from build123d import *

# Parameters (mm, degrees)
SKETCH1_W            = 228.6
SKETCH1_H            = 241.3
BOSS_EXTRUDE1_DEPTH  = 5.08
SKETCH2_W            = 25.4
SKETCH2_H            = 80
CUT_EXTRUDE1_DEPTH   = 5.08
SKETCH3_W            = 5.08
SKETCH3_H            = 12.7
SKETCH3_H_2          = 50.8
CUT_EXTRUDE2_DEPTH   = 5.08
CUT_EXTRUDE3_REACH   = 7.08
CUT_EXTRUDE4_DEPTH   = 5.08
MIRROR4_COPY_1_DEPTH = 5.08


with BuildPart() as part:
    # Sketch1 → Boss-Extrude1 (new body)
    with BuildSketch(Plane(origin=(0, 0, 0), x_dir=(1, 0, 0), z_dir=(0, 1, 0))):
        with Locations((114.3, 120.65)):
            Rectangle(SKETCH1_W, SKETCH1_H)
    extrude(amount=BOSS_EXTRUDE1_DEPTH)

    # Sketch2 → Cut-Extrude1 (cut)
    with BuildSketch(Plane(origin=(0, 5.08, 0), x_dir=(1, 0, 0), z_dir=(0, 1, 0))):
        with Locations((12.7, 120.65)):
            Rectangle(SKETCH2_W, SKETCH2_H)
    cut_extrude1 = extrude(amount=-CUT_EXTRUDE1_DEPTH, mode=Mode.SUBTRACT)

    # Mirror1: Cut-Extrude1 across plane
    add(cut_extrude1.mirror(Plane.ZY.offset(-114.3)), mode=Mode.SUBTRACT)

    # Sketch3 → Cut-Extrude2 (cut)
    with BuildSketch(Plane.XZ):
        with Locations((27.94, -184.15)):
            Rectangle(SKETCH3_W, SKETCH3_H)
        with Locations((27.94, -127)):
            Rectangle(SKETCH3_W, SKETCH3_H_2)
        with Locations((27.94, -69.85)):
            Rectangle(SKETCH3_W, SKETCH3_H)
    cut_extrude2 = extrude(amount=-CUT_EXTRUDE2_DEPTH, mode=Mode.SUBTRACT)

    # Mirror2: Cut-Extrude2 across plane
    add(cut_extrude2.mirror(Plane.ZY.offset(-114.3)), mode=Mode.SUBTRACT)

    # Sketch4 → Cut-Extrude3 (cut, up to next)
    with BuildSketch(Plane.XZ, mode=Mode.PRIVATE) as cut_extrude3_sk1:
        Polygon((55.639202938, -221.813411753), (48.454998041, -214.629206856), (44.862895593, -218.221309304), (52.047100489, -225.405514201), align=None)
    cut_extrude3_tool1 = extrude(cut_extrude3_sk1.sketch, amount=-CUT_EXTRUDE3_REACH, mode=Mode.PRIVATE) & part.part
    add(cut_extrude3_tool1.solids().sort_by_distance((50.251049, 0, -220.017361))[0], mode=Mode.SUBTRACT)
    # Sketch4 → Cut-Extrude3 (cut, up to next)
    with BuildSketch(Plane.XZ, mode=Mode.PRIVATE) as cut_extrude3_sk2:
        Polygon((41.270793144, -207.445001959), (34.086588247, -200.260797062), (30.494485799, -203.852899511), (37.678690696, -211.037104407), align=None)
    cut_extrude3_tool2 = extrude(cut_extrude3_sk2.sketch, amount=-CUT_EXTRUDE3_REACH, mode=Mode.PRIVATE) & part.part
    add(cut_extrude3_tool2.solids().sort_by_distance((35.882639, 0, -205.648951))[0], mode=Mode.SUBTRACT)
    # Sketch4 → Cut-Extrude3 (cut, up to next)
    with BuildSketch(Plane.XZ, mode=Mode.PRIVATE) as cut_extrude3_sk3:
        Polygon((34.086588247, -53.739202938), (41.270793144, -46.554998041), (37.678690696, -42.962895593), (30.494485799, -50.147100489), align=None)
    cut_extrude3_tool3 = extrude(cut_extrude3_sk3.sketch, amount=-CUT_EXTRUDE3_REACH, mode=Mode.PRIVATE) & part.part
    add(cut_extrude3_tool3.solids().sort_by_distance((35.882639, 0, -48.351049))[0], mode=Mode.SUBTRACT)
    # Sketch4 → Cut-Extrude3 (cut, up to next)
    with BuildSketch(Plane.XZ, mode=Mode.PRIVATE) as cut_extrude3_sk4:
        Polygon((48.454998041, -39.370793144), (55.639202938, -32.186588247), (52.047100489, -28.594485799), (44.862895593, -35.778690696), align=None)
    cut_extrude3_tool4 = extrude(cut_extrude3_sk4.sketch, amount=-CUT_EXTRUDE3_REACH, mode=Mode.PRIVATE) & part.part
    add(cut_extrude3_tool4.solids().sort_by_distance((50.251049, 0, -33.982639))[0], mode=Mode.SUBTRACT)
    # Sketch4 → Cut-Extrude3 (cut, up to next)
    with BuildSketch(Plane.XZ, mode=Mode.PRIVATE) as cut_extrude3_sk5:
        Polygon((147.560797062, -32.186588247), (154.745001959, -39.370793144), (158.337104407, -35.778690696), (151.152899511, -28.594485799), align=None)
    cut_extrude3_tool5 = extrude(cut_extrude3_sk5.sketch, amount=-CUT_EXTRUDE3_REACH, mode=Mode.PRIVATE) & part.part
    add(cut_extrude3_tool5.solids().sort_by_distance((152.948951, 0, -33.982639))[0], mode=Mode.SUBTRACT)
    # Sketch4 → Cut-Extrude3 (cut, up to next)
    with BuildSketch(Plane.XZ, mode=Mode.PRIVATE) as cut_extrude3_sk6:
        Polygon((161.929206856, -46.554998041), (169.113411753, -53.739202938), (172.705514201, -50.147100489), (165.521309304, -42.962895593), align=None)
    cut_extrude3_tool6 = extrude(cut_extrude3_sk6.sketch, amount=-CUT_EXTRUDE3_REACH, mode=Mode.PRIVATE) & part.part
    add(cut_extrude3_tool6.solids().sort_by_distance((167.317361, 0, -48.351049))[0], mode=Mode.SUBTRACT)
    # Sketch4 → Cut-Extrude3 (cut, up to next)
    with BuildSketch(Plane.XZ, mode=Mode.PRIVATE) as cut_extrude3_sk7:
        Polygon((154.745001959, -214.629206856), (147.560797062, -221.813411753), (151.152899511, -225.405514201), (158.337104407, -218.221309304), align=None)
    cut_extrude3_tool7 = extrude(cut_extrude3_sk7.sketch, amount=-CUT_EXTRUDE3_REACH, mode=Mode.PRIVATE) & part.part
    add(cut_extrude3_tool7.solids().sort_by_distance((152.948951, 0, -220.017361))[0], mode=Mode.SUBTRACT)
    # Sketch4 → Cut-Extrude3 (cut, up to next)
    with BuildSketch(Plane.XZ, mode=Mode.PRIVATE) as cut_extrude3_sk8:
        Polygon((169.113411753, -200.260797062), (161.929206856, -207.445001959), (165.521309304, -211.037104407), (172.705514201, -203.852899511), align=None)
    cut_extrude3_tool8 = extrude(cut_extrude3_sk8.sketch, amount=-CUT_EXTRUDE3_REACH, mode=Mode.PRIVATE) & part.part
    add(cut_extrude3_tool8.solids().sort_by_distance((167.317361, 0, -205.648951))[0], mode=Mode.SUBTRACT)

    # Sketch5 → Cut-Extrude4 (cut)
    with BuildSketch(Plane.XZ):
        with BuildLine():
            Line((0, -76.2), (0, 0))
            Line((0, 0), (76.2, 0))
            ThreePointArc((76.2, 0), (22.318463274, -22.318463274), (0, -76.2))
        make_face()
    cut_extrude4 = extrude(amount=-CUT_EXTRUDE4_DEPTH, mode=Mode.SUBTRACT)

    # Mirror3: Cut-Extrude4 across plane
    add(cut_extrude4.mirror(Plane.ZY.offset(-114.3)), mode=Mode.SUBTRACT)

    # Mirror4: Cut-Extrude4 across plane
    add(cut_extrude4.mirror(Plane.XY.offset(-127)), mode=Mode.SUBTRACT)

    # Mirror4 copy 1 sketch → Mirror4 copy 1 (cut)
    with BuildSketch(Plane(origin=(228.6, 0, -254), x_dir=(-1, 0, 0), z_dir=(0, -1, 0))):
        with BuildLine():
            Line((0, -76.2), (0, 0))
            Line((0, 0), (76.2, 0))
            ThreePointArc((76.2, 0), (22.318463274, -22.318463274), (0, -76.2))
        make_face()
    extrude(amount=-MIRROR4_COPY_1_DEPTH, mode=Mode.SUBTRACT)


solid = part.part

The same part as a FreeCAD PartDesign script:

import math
import FreeCAD as App
import Part
import Sketcher
from FreeCAD import Vector
Q = App.Units.Quantity


def add_polygon(sketch, points):
    """Adds a closed chain of lines whose ends are joined by coincident constraints."""
    first, n = sketch.GeometryCount, len(points)
    for a, b in zip(points, points[1:] + points[:1]):
        sketch.addGeometry(Part.LineSegment(App.Vector(*a, 0), App.Vector(*b, 0)), False)
    for i in range(n):
        sketch.addConstraint(Sketcher.Constraint("Coincident", first + i, 2, first + (i + 1) % n, 1))

doc = App.newDocument("Part")
body = doc.addObject("PartDesign::Body", "Body")

sketch1 = body.newObject("Sketcher::SketchObject", "Sketch")
sketch1.AttachmentSupport = (doc.getObject("XZ_Plane"), [""])
sketch1.MapMode = "FlatFace"
add_polygon(sketch1, [(0, -241), (0, 0), (229, 0), (229, -241)])
sketch1.addConstraint(Sketcher.Constraint("Vertical", 0))
sketch1.addConstraint(Sketcher.Constraint("Horizontal", 1))
sketch1.addConstraint(Sketcher.Constraint("Vertical", 2))
sketch1.addConstraint(Sketcher.Constraint("Horizontal", 3))
sketch1.addConstraint(Sketcher.Constraint("Coincident", 0, 2, -1, 1))
sketch1.addConstraint(Sketcher.Constraint("DistanceX", 1, 1, 1, 2, Q("9 in")))
sketch1.addConstraint(Sketcher.Constraint("DistanceY", 0, 1, 0, 2, Q("9.5 in")))
pad1 = body.newObject("PartDesign::Pad", "Pad")
pad1.Profile = sketch1
pad1.Length = Q("0.2 in")
pad1.Reversed = True

sketch2 = body.newObject("Sketcher::SketchObject", "Sketch001")
sketch2.AttachmentSupport = (doc.getObject("XZ_Plane"), [""])
sketch2.MapMode = "FlatFace"
sketch2.AttachmentOffset = App.Placement(Vector(0, 0, -0.2 * 25.4), App.Rotation())
add_polygon(sketch2, [(0, -161), (0, -81), (25, -81), (25, -161)])
sketch2.addConstraint(Sketcher.Constraint("Vertical", 0))
sketch2.addConstraint(Sketcher.Constraint("Horizontal", 1))
sketch2.addConstraint(Sketcher.Constraint("Vertical", 2))
sketch2.addConstraint(Sketcher.Constraint("Horizontal", 3))
sketch2.addConstraint(Sketcher.Constraint("PointOnObject", 0, 2, -2))
sketch2.addConstraint(Sketcher.Constraint("DistanceX", 1, 1, 1, 2, Q("1 in")))
sketch2.addConstraint(Sketcher.Constraint("DistanceY", 0, 1, 0, 2, Q("80 mm")))
sketch2.addConstraint(Sketcher.Constraint("DistanceY", 0, 2, -1, 1, Q("80.65 mm")))
pocket1 = body.newObject("PartDesign::Pocket", "Pocket")
pocket1.Profile = sketch2
pocket1.Length = Q("0.2 in")
pocket1.Reversed = True
doc.recompute()

datumplane = body.newObject("PartDesign::Plane", "DatumPlane")
datumplane.AttachmentSupport = (doc.getObject("YZ_Plane"), [""])
datumplane.MapMode = "FlatFace"
datumplane.AttachmentOffset = App.Placement(Vector(0, 0, 4.5 * 25.4), App.Rotation())
mirrored = body.newObject("PartDesign::Mirrored", "Mirrored")
mirrored.Originals = [pocket1]
mirrored.MirrorPlane = (datumplane, [""])
body.Tip = mirrored

sketch3 = body.newObject("Sketcher::SketchObject", "Sketch002")
sketch3.AttachmentSupport = (doc.getObject("XZ_Plane"), [""])
sketch3.MapMode = "FlatFace"
add_polygon(sketch3, [(25, -178), (25, -190), (30, -190), (30, -178)])
add_polygon(sketch3, [(25, -102), (25, -152), (30, -152), (30, -102)])
add_polygon(sketch3, [(25, -64), (25, -76), (30, -76), (30, -64)])
sketch3.addConstraint(Sketcher.Constraint("Vertical", 0))
sketch3.addConstraint(Sketcher.Constraint("Horizontal", 1))
sketch3.addConstraint(Sketcher.Constraint("Vertical", 2))
sketch3.addConstraint(Sketcher.Constraint("Horizontal", 3))
sketch3.addConstraint(Sketcher.Constraint("Vertical", 4))
sketch3.addConstraint(Sketcher.Constraint("Horizontal", 5))
sketch3.addConstraint(Sketcher.Constraint("Vertical", 6))
sketch3.addConstraint(Sketcher.Constraint("Horizontal", 7))
sketch3.addConstraint(Sketcher.Constraint("Vertical", 8))
sketch3.addConstraint(Sketcher.Constraint("Horizontal", 9))
sketch3.addConstraint(Sketcher.Constraint("Vertical", 10))
sketch3.addConstraint(Sketcher.Constraint("Horizontal", 11))
sketch3.addConstraint(Sketcher.Constraint("Vertical", 3, 2, 4, 2))
sketch3.addConstraint(Sketcher.Constraint("Vertical", 2, 2, 5, 2))
sketch3.addConstraint(Sketcher.Constraint("Vertical", 7, 2, 8, 2))
sketch3.addConstraint(Sketcher.Constraint("Vertical", 6, 2, 9, 2))
sketch3.addConstraint(Sketcher.Constraint("Equal", 2, 8))
sketch3.addConstraint(Sketcher.Constraint("DistanceY", 4, 2, 4, 1, Q("2 in")))
sketch3.addConstraint(Sketcher.Constraint("DistanceX", 1, 1, 1, 2, Q("0.2 in")))
sketch3.addConstraint(Sketcher.Constraint("DistanceY", 0, 2, 0, 1, Q("0.5 in")))
sketch3.addConstraint(Sketcher.Constraint("DistanceX", -1, 1, 0, 2, Q("1 in")))
sketch3.addConstraint(Sketcher.Constraint("DistanceY", 2, 2, -1, 1, Q("7 in")))
sketch3.addConstraint(Sketcher.Constraint("DistanceY", 4, 2, -1, 1, Q("6 in")))
sketch3.addConstraint(Sketcher.Constraint("DistanceY", 8, 2, -1, 1, Q("3 in")))
pocket2 = body.newObject("PartDesign::Pocket", "Pocket001")
pocket2.Profile = sketch3
pocket2.Length = Q("0.2 in")
doc.recompute()

datumplane2 = body.newObject("PartDesign::Plane", "DatumPlane001")
datumplane2.AttachmentSupport = (doc.getObject("YZ_Plane"), [""])
datumplane2.MapMode = "FlatFace"
datumplane2.AttachmentOffset = App.Placement(Vector(0, 0, 4.5 * 25.4), App.Rotation())
mirrored2 = body.newObject("PartDesign::Mirrored", "Mirrored001")
mirrored2.Originals = [pocket2]
mirrored2.MirrorPlane = (datumplane2, [""])
body.Tip = mirrored2

sketch4 = body.newObject("Sketcher::SketchObject", "Sketch003")
sketch4.AttachmentSupport = (doc.getObject("XZ_Plane"), [""])
sketch4.MapMode = "FlatFace"
add_polygon(sketch4, [(56, -222), (48, -215), (45, -218), (52, -225)])
sketch4.addConstraint(Sketcher.Constraint("Perpendicular", 0, 1))
sketch4.addConstraint(Sketcher.Constraint("Perpendicular", 1, 2))
sketch4.addConstraint(Sketcher.Constraint("Perpendicular", 2, 3))
sketch4.addConstraint(Sketcher.Constraint("Angle", 0, Q("135 deg")))
sketch4.addConstraint(Sketcher.Constraint("Distance", 0, Q("0.4 in")))
sketch4.addConstraint(Sketcher.Constraint("Distance", 1, Q("0.2 in")))
sketch4.addConstraint(Sketcher.Constraint("DistanceX", -1, 1, 0, 2, Q("48.454998 mm")))
sketch4.addConstraint(Sketcher.Constraint("DistanceY", 1, 2, -1, 1, Q("218.221309 mm")))
pocket3 = body.newObject("PartDesign::Pocket", "Pocket002")
pocket3.Profile = sketch4
pocket3.Type = "UpToFirst"

sketch5 = body.newObject("Sketcher::SketchObject", "Sketch004")
sketch5.AttachmentSupport = (doc.getObject("XZ_Plane"), [""])
sketch5.MapMode = "FlatFace"
add_polygon(sketch5, [(41, -207), (34, -200), (30, -204), (38, -211)])
sketch5.addConstraint(Sketcher.Constraint("Perpendicular", 0, 1))
sketch5.addConstraint(Sketcher.Constraint("Perpendicular", 1, 2))
sketch5.addConstraint(Sketcher.Constraint("Perpendicular", 2, 3))
sketch5.addConstraint(Sketcher.Constraint("Angle", 0, Q("135 deg")))
sketch5.addConstraint(Sketcher.Constraint("Distance", 0, Q("0.4 in")))
sketch5.addConstraint(Sketcher.Constraint("Distance", 1, Q("0.2 in")))
sketch5.addConstraint(Sketcher.Constraint("DistanceY", 1, 2, -1, 1, Q("203.8529 mm")))
sketch5.addConstraint(Sketcher.Constraint("DistanceX", -1, 1, 0, 2, Q("34.086588 mm")))
pocket4 = body.newObject("PartDesign::Pocket", "Pocket003")
pocket4.Profile = sketch5
pocket4.Type = "UpToFirst"

sketch6 = body.newObject("Sketcher::SketchObject", "Sketch005")
sketch6.AttachmentSupport = (doc.getObject("XZ_Plane"), [""])
sketch6.MapMode = "FlatFace"
add_polygon(sketch6, [(34, -54), (41, -47), (38, -43), (30, -50)])
sketch6.addConstraint(Sketcher.Constraint("Perpendicular", 0, 1))
sketch6.addConstraint(Sketcher.Constraint("Perpendicular", 1, 2))
sketch6.addConstraint(Sketcher.Constraint("Perpendicular", 2, 3))
sketch6.addConstraint(Sketcher.Constraint("Angle", 0, Q("45 deg")))
sketch6.addConstraint(Sketcher.Constraint("Distance", 0, Q("0.4 in")))
sketch6.addConstraint(Sketcher.Constraint("Distance", 1, Q("0.2 in")))
sketch6.addConstraint(Sketcher.Constraint("DistanceY", 0, 2, -1, 1, Q("46.554998 mm")))
sketch6.addConstraint(Sketcher.Constraint("DistanceX", -1, 1, 1, 2, Q("37.678691 mm")))
pocket5 = body.newObject("PartDesign::Pocket", "Pocket004")
pocket5.Profile = sketch6
pocket5.Type = "UpToFirst"

sketch7 = body.newObject("Sketcher::SketchObject", "Sketch006")
sketch7.AttachmentSupport = (doc.getObject("XZ_Plane"), [""])
sketch7.MapMode = "FlatFace"
add_polygon(sketch7, [(48, -39), (56, -32), (52, -29), (45, -36)])
sketch7.addConstraint(Sketcher.Constraint("Perpendicular", 0, 1))
sketch7.addConstraint(Sketcher.Constraint("Perpendicular", 1, 2))
sketch7.addConstraint(Sketcher.Constraint("Perpendicular", 2, 3))
sketch7.addConstraint(Sketcher.Constraint("Angle", 0, Q("45 deg")))
sketch7.addConstraint(Sketcher.Constraint("Distance", 0, Q("0.4 in")))
sketch7.addConstraint(Sketcher.Constraint("Distance", 1, Q("0.2 in")))
sketch7.addConstraint(Sketcher.Constraint("DistanceX", -1, 1, 1, 2, Q("52.0471 mm")))
sketch7.addConstraint(Sketcher.Constraint("DistanceY", 0, 2, -1, 1, Q("32.186588 mm")))
pocket6 = body.newObject("PartDesign::Pocket", "Pocket005")
pocket6.Profile = sketch7
pocket6.Type = "UpToFirst"

sketch8 = body.newObject("Sketcher::SketchObject", "Sketch007")
sketch8.AttachmentSupport = (doc.getObject("XZ_Plane"), [""])
sketch8.MapMode = "FlatFace"
add_polygon(sketch8, [(148, -32), (155, -39), (158, -36), (151, -29)])
sketch8.addConstraint(Sketcher.Constraint("Perpendicular", 0, 1))
sketch8.addConstraint(Sketcher.Constraint("Perpendicular", 1, 2))
sketch8.addConstraint(Sketcher.Constraint("Perpendicular", 2, 3))
sketch8.addConstraint(Sketcher.Constraint("Angle", 0, Q("-45 deg")))
sketch8.addConstraint(Sketcher.Constraint("Distance", 0, Q("0.4 in")))
sketch8.addConstraint(Sketcher.Constraint("Distance", 1, Q("0.2 in")))
sketch8.addConstraint(Sketcher.Constraint("DistanceX", -1, 1, 0, 2, Q("154.745002 mm")))
sketch8.addConstraint(Sketcher.Constraint("DistanceY", 1, 2, -1, 1, Q("35.778691 mm")))
pocket7 = body.newObject("PartDesign::Pocket", "Pocket006")
pocket7.Profile = sketch8
pocket7.Type = "UpToFirst"

sketch9 = body.newObject("Sketcher::SketchObject", "Sketch008")
sketch9.AttachmentSupport = (doc.getObject("XZ_Plane"), [""])
sketch9.MapMode = "FlatFace"
add_polygon(sketch9, [(162, -47), (169, -54), (173, -50), (166, -43)])
sketch9.addConstraint(Sketcher.Constraint("Perpendicular", 0, 1))
sketch9.addConstraint(Sketcher.Constraint("Perpendicular", 1, 2))
sketch9.addConstraint(Sketcher.Constraint("Perpendicular", 2, 3))
sketch9.addConstraint(Sketcher.Constraint("Angle", 0, Q("-45 deg")))
sketch9.addConstraint(Sketcher.Constraint("Distance", 0, Q("0.4 in")))
sketch9.addConstraint(Sketcher.Constraint("Distance", 1, Q("0.2 in")))
sketch9.addConstraint(Sketcher.Constraint("DistanceY", 1, 2, -1, 1, Q("50.1471 mm")))
sketch9.addConstraint(Sketcher.Constraint("DistanceX", -1, 1, 0, 2, Q("169.113412 mm")))
pocket8 = body.newObject("PartDesign::Pocket", "Pocket007")
pocket8.Profile = sketch9
pocket8.Type = "UpToFirst"

sketch10 = body.newObject("Sketcher::SketchObject", "Sketch009")
sketch10.AttachmentSupport = (doc.getObject("XZ_Plane"), [""])
sketch10.MapMode = "FlatFace"
add_polygon(sketch10, [(155, -215), (148, -222), (151, -225), (158, -218)])
sketch10.addConstraint(Sketcher.Constraint("Perpendicular", 0, 1))
sketch10.addConstraint(Sketcher.Constraint("Perpendicular", 1, 2))
sketch10.addConstraint(Sketcher.Constraint("Perpendicular", 2, 3))
sketch10.addConstraint(Sketcher.Constraint("Angle", 0, Q("-135 deg")))
sketch10.addConstraint(Sketcher.Constraint("Distance", 0, Q("0.4 in")))
sketch10.addConstraint(Sketcher.Constraint("Distance", 1, Q("0.2 in")))
sketch10.addConstraint(Sketcher.Constraint("DistanceX", -1, 1, 1, 2, Q("151.1529 mm")))
sketch10.addConstraint(Sketcher.Constraint("DistanceY", 0, 2, -1, 1, Q("221.813412 mm")))
pocket9 = body.newObject("PartDesign::Pocket", "Pocket008")
pocket9.Profile = sketch10
pocket9.Type = "UpToFirst"

sketch11 = body.newObject("Sketcher::SketchObject", "Sketch010")
sketch11.AttachmentSupport = (doc.getObject("XZ_Plane"), [""])
sketch11.MapMode = "FlatFace"
add_polygon(sketch11, [(169, -200), (162, -207), (166, -211), (173, -204)])
sketch11.addConstraint(Sketcher.Constraint("Perpendicular", 0, 1))
sketch11.addConstraint(Sketcher.Constraint("Perpendicular", 1, 2))
sketch11.addConstraint(Sketcher.Constraint("Perpendicular", 2, 3))
sketch11.addConstraint(Sketcher.Constraint("Angle", 0, Q("-135 deg")))
sketch11.addConstraint(Sketcher.Constraint("Distance", 0, Q("0.4 in")))
sketch11.addConstraint(Sketcher.Constraint("Distance", 1, Q("0.2 in")))
sketch11.addConstraint(Sketcher.Constraint("DistanceY", 0, 2, -1, 1, Q("207.445002 mm")))
sketch11.addConstraint(Sketcher.Constraint("DistanceX", -1, 1, 1, 2, Q("165.521309 mm")))
pocket10 = body.newObject("PartDesign::Pocket", "Pocket009")
pocket10.Profile = sketch11
pocket10.Type = "UpToFirst"

sketch12 = body.newObject("Sketcher::SketchObject", "Sketch011")
sketch12.AttachmentSupport = (doc.getObject("XZ_Plane"), [""])
sketch12.MapMode = "FlatFace"
sketch12.addGeometry(Part.LineSegment(Vector(0, 0, 0), Vector(0, -76, 0)), False)
sketch12.addGeometry(Part.ArcOfCircle(Part.Circle(Vector(76, -76, 0), Vector(0, 0, 1), 76), math.radians(90), math.radians(180)), False)
sketch12.addGeometry(Part.LineSegment(Vector(76, 0, 0), Vector(0, 0, 0)), False)
sketch12.addConstraint(Sketcher.Constraint("Tangent", 0, 2, 1, 2))
sketch12.addConstraint(Sketcher.Constraint("Tangent", 1, 1, 2, 1))
sketch12.addConstraint(Sketcher.Constraint("Coincident", 2, 2, 0, 1))
sketch12.addConstraint(Sketcher.Constraint("Vertical", 0))
sketch12.addConstraint(Sketcher.Constraint("Horizontal", 2))
sketch12.addConstraint(Sketcher.Constraint("Coincident", 2, 2, -1, 1))
sketch12.addConstraint(Sketcher.Constraint("Radius", 1, Q("3 in")))
pocket11 = body.newObject("PartDesign::Pocket", "Pocket010")
pocket11.Profile = sketch12
pocket11.Length = Q("0.2 in")
doc.recompute()

datumplane3 = body.newObject("PartDesign::Plane", "DatumPlane002")
datumplane3.AttachmentSupport = (doc.getObject("YZ_Plane"), [""])
datumplane3.MapMode = "FlatFace"
datumplane3.AttachmentOffset = App.Placement(Vector(0, 0, 4.5 * 25.4), App.Rotation())
mirrored3 = body.newObject("PartDesign::Mirrored", "Mirrored002")
mirrored3.Originals = [pocket11]
mirrored3.MirrorPlane = (datumplane3, [""])
body.Tip = mirrored3
doc.recompute()

datumplane4 = body.newObject("PartDesign::Plane", "DatumPlane003")
datumplane4.AttachmentSupport = (doc.getObject("XY_Plane"), [""])
datumplane4.MapMode = "FlatFace"
datumplane4.AttachmentOffset = App.Placement(Vector(0, 0, -5 * 25.4), App.Rotation())
mirrored4 = body.newObject("PartDesign::Mirrored", "Mirrored003")
mirrored4.Originals = [pocket11]
mirrored4.MirrorPlane = (datumplane4, [""])
body.Tip = mirrored4

sketch13 = body.newObject("Sketcher::SketchObject", "Sketch012")
sketch13.AttachmentSupport = (doc.getObject("XZ_Plane"), [""])
sketch13.MapMode = "FlatFace"
sketch13.addGeometry(Part.LineSegment(Vector(229, -254, 0), Vector(229, -178, 0)), False)
sketch13.addGeometry(Part.ArcOfCircle(Part.Circle(Vector(152, -178, 0), Vector(0, 0, 1), 76), math.radians(-90), math.radians(0)), False)
sketch13.addGeometry(Part.LineSegment(Vector(152, -254, 0), Vector(229, -254, 0)), False)
sketch13.addConstraint(Sketcher.Constraint("Tangent", 0, 2, 1, 2))
sketch13.addConstraint(Sketcher.Constraint("Tangent", 1, 1, 2, 1))
sketch13.addConstraint(Sketcher.Constraint("Coincident", 2, 2, 0, 1))
sketch13.addConstraint(Sketcher.Constraint("Vertical", 0))
sketch13.addConstraint(Sketcher.Constraint("Horizontal", 2))
sketch13.addConstraint(Sketcher.Constraint("Radius", 1, Q("3 in")))
sketch13.addConstraint(Sketcher.Constraint("DistanceX", -1, 1, 1, 3, Q("6 in")))
sketch13.addConstraint(Sketcher.Constraint("DistanceY", 1, 3, -1, 1, Q("7 in")))
pocket12 = body.newObject("PartDesign::Pocket", "Pocket011")
pocket12.Profile = sketch13
pocket12.Length = Q("0.2 in")

doc.recompute()
